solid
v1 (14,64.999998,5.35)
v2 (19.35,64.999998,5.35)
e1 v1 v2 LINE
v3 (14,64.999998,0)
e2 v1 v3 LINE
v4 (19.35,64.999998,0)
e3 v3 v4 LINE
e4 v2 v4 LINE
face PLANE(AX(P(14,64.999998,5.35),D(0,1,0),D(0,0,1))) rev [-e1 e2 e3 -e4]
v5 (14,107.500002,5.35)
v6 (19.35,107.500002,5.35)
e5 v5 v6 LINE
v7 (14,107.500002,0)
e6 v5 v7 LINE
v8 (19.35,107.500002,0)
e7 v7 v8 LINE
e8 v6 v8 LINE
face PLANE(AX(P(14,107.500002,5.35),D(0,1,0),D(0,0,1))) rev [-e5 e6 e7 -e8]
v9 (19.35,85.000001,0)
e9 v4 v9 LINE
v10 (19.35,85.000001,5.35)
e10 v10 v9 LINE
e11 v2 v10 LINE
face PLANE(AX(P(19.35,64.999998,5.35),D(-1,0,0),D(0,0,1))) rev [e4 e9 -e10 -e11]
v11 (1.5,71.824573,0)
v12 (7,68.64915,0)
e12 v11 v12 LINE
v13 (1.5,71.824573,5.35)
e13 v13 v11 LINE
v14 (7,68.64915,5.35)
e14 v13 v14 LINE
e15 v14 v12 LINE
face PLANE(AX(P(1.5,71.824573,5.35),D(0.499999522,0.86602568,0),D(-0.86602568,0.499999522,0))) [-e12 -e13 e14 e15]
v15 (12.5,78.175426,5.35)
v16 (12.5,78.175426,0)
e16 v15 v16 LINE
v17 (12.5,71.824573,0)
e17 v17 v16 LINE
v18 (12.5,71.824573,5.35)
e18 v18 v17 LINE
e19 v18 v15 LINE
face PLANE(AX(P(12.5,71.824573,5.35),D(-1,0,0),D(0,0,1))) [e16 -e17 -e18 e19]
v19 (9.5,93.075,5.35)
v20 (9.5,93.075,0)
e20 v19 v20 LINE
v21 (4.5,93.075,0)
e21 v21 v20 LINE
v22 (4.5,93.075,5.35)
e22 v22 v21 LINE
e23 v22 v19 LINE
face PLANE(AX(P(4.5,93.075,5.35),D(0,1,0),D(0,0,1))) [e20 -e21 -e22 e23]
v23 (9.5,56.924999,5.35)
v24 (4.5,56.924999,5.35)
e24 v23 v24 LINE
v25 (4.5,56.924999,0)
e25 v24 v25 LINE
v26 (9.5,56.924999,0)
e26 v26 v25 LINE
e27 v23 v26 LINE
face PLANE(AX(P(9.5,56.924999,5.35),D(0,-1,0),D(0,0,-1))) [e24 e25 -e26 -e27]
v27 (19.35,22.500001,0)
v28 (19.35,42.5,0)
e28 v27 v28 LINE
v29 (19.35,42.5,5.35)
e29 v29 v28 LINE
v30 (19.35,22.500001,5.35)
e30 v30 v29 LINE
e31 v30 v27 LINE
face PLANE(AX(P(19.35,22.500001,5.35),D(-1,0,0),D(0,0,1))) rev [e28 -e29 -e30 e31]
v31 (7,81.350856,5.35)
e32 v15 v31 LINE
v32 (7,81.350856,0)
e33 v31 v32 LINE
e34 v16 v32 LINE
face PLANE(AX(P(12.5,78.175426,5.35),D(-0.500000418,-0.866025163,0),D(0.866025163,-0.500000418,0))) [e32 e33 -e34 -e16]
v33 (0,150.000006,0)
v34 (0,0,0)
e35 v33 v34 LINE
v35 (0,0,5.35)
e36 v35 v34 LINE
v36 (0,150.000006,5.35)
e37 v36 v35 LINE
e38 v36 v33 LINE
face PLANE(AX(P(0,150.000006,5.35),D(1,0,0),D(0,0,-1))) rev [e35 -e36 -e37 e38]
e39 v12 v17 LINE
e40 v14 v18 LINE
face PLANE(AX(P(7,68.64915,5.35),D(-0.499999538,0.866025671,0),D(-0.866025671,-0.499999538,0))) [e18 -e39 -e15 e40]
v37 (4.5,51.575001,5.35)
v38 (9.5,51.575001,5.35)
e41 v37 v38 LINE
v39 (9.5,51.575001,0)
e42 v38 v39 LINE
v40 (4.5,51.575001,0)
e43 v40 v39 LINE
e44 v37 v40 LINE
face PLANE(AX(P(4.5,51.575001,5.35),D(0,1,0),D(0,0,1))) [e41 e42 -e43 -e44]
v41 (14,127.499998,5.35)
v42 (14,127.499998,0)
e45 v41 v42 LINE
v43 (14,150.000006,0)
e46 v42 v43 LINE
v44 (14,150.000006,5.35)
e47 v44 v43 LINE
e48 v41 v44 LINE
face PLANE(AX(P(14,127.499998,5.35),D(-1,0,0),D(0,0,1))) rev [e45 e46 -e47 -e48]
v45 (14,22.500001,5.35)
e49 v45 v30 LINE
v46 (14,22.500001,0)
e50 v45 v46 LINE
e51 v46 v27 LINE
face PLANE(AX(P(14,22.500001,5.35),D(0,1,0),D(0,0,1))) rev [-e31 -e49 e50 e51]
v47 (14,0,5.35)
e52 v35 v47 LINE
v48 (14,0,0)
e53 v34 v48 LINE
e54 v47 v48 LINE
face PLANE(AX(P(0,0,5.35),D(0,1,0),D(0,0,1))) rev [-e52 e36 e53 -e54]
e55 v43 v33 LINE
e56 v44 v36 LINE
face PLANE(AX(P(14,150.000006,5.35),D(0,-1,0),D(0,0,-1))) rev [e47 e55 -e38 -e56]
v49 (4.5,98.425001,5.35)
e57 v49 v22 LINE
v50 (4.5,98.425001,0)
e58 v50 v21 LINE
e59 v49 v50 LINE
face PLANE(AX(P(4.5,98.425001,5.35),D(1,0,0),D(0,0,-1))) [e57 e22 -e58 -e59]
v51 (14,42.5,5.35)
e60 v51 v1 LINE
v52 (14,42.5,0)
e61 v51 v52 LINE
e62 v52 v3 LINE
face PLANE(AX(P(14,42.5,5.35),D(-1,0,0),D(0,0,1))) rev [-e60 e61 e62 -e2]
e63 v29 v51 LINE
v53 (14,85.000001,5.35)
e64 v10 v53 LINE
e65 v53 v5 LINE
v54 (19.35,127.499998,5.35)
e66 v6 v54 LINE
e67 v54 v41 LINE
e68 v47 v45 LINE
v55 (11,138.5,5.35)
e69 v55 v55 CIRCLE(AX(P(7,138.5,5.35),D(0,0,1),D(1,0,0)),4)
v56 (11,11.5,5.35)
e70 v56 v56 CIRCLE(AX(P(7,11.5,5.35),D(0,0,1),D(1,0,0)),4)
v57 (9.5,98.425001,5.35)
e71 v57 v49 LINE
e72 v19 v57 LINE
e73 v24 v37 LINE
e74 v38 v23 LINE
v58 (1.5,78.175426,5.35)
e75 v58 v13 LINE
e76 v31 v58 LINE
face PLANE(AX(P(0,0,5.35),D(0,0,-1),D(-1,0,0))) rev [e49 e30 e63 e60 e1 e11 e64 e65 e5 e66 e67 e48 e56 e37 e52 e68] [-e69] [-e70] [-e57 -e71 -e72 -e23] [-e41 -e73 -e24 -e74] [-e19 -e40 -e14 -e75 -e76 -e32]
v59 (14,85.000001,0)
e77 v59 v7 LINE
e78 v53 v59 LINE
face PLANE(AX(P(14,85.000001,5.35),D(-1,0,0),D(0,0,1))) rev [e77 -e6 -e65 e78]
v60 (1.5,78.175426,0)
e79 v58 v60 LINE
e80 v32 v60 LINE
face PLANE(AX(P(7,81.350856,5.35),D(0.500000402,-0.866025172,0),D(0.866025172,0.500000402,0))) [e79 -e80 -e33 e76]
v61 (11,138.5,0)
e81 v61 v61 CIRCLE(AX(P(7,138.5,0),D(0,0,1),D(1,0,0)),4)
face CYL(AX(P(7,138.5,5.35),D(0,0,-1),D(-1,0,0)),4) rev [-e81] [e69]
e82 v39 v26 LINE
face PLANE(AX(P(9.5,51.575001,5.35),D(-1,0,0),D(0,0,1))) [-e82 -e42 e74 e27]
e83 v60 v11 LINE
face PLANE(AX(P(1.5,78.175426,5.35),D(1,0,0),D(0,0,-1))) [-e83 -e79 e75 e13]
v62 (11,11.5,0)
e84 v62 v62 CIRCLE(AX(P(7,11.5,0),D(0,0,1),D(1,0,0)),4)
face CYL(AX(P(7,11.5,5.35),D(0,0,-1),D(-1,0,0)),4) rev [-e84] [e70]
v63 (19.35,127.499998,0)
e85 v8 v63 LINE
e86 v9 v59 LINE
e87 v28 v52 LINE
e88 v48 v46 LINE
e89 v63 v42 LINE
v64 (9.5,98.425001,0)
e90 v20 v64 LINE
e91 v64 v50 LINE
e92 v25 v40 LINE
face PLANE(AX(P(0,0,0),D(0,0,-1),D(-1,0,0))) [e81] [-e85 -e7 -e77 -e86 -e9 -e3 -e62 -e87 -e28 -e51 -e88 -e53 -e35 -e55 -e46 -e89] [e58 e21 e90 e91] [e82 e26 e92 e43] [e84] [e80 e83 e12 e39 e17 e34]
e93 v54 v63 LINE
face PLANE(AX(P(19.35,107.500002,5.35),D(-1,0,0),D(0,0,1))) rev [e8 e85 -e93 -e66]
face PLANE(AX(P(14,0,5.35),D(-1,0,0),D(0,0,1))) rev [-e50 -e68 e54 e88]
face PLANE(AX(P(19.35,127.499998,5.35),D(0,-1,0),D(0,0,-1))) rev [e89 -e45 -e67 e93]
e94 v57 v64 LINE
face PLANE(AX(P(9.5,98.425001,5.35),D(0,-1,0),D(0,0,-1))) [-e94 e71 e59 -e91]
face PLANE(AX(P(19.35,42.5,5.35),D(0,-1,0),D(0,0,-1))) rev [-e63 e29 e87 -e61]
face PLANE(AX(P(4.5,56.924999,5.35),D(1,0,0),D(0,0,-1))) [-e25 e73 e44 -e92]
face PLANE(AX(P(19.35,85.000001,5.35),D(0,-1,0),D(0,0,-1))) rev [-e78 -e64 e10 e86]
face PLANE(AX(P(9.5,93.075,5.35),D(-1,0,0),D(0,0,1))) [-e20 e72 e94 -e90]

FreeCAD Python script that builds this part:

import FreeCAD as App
import Part
import Sketcher
from FreeCAD import Vector


def add_polygon(sketch, points):
    """Adds a closed chain of lines whose ends are joined by coincident constraints."""
    first, n = sketch.GeometryCount, len(points)
    for a, b in zip(points, points[1:] + points[:1]):
        sketch.addGeometry(Part.LineSegment(App.Vector(*a, 0), App.Vector(*b, 0)), False)
    for i in range(n):
        sketch.addConstraint(Sketcher.Constraint("Coincident", first + i, 2, first + (i + 1) % n, 1))

doc = App.newDocument("Part")
body = doc.addObject("PartDesign::Body", "Body")

# Sketch on XY plane
sketch1 = body.newObject("Sketcher::SketchObject", "Sketch")
sketch1.AttachmentSupport = (doc.getObject("XY_Plane"), [""])
sketch1.MapMode = "FlatFace"
add_polygon(sketch1, [(14, 127.5), (14, 150), (0, 150), (0, 0), (14, 0), (14, 22.5), (19.3, 22.5), (19.3, 42.5), (14, 42.5), (14, 65), (19.3, 65), (19.3, 85), (14, 85), (14, 107.5), (19.3, 107.5), (19.3, 127.5)])  # lines 0-15
sketch1.addGeometry(Part.Circle(Vector(7, 11.5, 0), Vector(0, 0, 1), 4), False)  # 16
add_polygon(sketch1, [(9.5, 51.6), (4.5, 51.6), (4.5, 56.9), (9.5, 56.9)])  # lines 17-20
add_polygon(sketch1, [(7, 68.6), (1.5, 71.8), (1.5, 78.2), (7, 81.4), (12.5, 78.2), (12.5, 71.8)])  # lines 21-26
add_polygon(sketch1, [(9.5, 93.1), (4.5, 93.1), (4.5, 98.4), (9.5, 98.4)])  # lines 27-30
sketch1.addGeometry(Part.Circle(Vector(7, 138.5, 0), Vector(0, 0, 1), 4), False)  # 31
sketch1.addConstraint([
    Sketcher.Constraint("Vertical", 0),
    Sketcher.Constraint("Horizontal", 1),
    Sketcher.Constraint("Vertical", 2),
    Sketcher.Constraint("Horizontal", 3),
    Sketcher.Constraint("Vertical", 4),
    Sketcher.Constraint("Horizontal", 5),
    Sketcher.Constraint("Vertical", 6),
    Sketcher.Constraint("Horizontal", 7),
    Sketcher.Constraint("Vertical", 8),
    Sketcher.Constraint("Horizontal", 9),
    Sketcher.Constraint("Vertical", 10),
    Sketcher.Constraint("Horizontal", 11),
    Sketcher.Constraint("Vertical", 12),
    Sketcher.Constraint("Horizontal", 13),
    Sketcher.Constraint("Vertical", 14),
    Sketcher.Constraint("Horizontal", 15),
    Sketcher.Constraint("Horizontal", 17),
    Sketcher.Constraint("Vertical", 18),
    Sketcher.Constraint("Horizontal", 19),
    Sketcher.Constraint("Vertical", 20),
    Sketcher.Constraint("Vertical", 22),
    Sketcher.Constraint("Vertical", 25),
    Sketcher.Constraint("Horizontal", 27),
    Sketcher.Constraint("Vertical", 28),
    Sketcher.Constraint("Horizontal", 29),
    Sketcher.Constraint("Vertical", 30),
    Sketcher.Constraint("Coincident", 2, 2, -1, 1),
    Sketcher.Constraint("Equal", 16, 31),
    Sketcher.Constraint("Parallel", 21, 24),
    Sketcher.Constraint("Parallel", 23, 26),
    Sketcher.Constraint("Horizontal", 22, 2, 24, 2),
    Sketcher.Constraint("Horizontal", 21, 2, 25, 2),
    Sketcher.Constraint("Vertical", 16, 3, 31, 3),
    Sketcher.Constraint("Vertical", 0, 2, 3, 2),
    Sketcher.Constraint("Vertical", 4, 2, 7, 2),
    Sketcher.Constraint("Vertical", 6, 2, 9, 2),
    Sketcher.Constraint("Vertical", 8, 2, 11, 2),
    Sketcher.Constraint("Vertical", 10, 2, 13, 2),
    Sketcher.Constraint("Vertical", 31, 3, 23, 2),
    Sketcher.Constraint("Vertical", 23, 2, 26, 2),
    Sketcher.Constraint("Vertical", 18, 2, 27, 2),
    Sketcher.Constraint("Vertical", 20, 2, 29, 2),
    Sketcher.Constraint("Equal", 4, 12),
    Sketcher.Constraint("Equal", 15, 18),
    Sketcher.Constraint("Equal", 15, 28),
    Sketcher.Constraint("Diameter", 16, 8.0),
    Sketcher.Constraint("DistanceX", 1, 2, 1, 1, 14.0),
    Sketcher.Constraint("DistanceX", 17, 2, 17, 1, 5.0),
    Sketcher.Constraint("DistanceY", 6, 1, 6, 2, 20.0),
    Sketcher.Constraint("DistanceY", 4, 1, 4, 2, 22.500001),
    Sketcher.Constraint("DistanceX", -1, 1, 16, 3, 7.0),
    Sketcher.Constraint("DistanceY", -1, 1, 10, 2, 85.000001),
    Sketcher.Constraint("DistanceY", 16, 3, 31, 3, 127.0),
    Sketcher.Constraint("DistanceY", 16, 3, 4, 2, 11.000001),
    Sketcher.Constraint("DistanceX", 21, 2, 18, 2, 3.0),
    Sketcher.Constraint("DistanceX", 22, 2, 24, 2, 11.0),
    Sketcher.Constraint("DistanceX", 5, 1, 5, 2, 5.349999),
    Sketcher.Constraint("DistanceY", -1, 1, 17, 2, 51.575001),
    Sketcher.Constraint("DistanceY", -1, 1, 27, 2, 93.075),
    Sketcher.Constraint("DistanceY", 18, 2, 8, 2, 8.074999),
    Sketcher.Constraint("DistanceY", 0, 1, 0, 2, 22.500008),
    Sketcher.Constraint("Distance", 21, 6.350851),
    Sketcher.Constraint("DistanceY", 2, 2, 2, 1, 150.000006),
    Sketcher.Constraint("DistanceY", 22, 1, 22, 2, 6.350853),
    Sketcher.Constraint("DistanceY", -1, 1, 26, 2, 68.64915),
])
pad1 = body.newObject("PartDesign::Pad", "Pad")
pad1.Profile = sketch1
pad1.Length = 5.35

doc.recompute()
